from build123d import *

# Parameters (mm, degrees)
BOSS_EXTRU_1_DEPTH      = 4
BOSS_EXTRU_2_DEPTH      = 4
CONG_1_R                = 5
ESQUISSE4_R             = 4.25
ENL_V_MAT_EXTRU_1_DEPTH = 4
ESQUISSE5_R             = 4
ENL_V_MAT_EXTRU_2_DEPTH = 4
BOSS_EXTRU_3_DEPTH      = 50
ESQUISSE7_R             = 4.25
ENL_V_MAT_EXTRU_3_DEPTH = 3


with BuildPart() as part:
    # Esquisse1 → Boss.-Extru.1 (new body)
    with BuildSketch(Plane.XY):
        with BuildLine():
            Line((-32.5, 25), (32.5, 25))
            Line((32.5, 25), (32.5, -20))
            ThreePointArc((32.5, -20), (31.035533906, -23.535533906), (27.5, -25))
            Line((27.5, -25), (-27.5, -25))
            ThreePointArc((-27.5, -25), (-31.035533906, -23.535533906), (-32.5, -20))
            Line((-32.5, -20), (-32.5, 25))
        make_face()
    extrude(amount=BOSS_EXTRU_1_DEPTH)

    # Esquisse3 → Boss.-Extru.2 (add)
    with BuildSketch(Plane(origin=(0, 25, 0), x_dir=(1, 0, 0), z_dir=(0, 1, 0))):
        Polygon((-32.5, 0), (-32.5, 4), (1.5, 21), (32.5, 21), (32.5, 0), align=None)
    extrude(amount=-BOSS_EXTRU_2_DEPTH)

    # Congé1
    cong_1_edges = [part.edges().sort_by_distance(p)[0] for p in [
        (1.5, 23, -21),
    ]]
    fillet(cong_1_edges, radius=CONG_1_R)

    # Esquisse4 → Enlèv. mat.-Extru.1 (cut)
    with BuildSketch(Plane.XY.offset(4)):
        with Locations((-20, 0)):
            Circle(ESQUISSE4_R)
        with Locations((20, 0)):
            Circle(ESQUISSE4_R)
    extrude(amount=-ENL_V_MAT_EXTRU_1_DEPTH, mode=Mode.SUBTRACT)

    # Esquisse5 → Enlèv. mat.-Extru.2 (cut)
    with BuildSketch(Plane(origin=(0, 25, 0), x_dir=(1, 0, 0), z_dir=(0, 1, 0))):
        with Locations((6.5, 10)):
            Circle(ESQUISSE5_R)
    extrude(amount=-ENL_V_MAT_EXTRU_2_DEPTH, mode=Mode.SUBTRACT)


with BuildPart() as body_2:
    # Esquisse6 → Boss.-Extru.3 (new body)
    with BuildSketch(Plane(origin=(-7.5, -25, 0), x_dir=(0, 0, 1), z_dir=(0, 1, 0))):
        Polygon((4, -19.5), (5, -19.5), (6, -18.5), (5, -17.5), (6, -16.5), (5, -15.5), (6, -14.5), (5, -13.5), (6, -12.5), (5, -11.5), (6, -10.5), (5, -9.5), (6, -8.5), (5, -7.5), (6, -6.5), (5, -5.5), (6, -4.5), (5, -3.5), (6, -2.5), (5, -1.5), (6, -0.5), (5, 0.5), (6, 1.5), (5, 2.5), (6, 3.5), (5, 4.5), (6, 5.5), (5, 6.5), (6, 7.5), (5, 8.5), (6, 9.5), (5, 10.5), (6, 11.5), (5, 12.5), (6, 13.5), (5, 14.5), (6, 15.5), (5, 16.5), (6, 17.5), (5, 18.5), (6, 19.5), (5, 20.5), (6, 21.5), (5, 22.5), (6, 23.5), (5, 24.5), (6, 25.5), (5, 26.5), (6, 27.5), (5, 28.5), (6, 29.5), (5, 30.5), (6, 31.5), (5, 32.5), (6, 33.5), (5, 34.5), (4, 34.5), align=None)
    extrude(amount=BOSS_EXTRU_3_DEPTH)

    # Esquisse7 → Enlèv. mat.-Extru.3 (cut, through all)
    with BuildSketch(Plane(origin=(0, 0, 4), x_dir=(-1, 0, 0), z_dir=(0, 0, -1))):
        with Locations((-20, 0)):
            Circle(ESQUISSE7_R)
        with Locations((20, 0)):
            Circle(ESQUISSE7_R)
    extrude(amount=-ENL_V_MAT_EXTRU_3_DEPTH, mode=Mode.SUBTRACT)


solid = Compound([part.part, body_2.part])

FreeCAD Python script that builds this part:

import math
import FreeCAD as App
import Part
import Sketcher

V = App.Vector


def edges_at(feature, points):
    """Names of the edges that pass closest to the given points."""
    edges = feature.Shape.Edges
    near = lambda p: min(range(len(edges)), key=lambda i: edges[i].distToShape(Part.Vertex(*p))[0])
    return sorted({f"Edge{near(p) + 1}" for p in points})


def add_polygon(sketch, points):
    """Adds a closed chain of lines whose ends are joined by coincident constraints."""
    first, n = sketch.GeometryCount, len(points)
    for a, b in zip(points, points[1:] + points[:1]):
        sketch.addGeometry(Part.LineSegment(App.Vector(*a, 0), App.Vector(*b, 0)), False)
    for i in range(n):
        sketch.addConstraint(Sketcher.Constraint("Coincident", first + i, 2, first + (i + 1) % n, 1))

doc = App.newDocument("Part")
body = doc.addObject("PartDesign::Body", "Body")

sketch1 = body.newObject("Sketcher::SketchObject", "Sketch")
sketch1.AttachmentSupport = (doc.getObject("XY_Plane"), [""])
sketch1.MapMode = "FlatFace"
sketch1.addGeometry([
    Part.LineSegment(V(32.5, 25, 0), V(-32.5, 25, 0)),
    Part.LineSegment(V(-32.5, 25, 0), V(-32.5, -20, 0)),
    Part.ArcOfCircle(Part.Circle(V(-27.5, -20, 0), V(0, 0, 1), 5), math.radians(180), math.radians(270)),
    Part.LineSegment(V(-27.5, -25, 0), V(27.5, -25, 0)),
    Part.ArcOfCircle(Part.Circle(V(27.5, -20, 0), V(0, 0, 1), 5), math.radians(-90), math.radians(0)),
    Part.LineSegment(V(32.5, -20, 0), V(32.5, 25, 0)),
], False)
sketch1.addConstraint([
    Sketcher.Constraint("Coincident", 0, 2, 1, 1),
    Sketcher.Constraint("Tangent", 1, 2, 2, 1),
    Sketcher.Constraint("Tangent", 2, 2, 3, 1),
    Sketcher.Constraint("Tangent", 3, 2, 4, 1),
    Sketcher.Constraint("Tangent", 4, 2, 5, 1),
    Sketcher.Constraint("Coincident", 5, 2, 0, 1),
    Sketcher.Constraint("Horizontal", 0),
    Sketcher.Constraint("Vertical", 1),
    Sketcher.Constraint("Horizontal", 3),
    Sketcher.Constraint("Vertical", 5),
    Sketcher.Constraint("Equal", 2, 4),
    Sketcher.Constraint("Radius", 2, 5.0),
    Sketcher.Constraint("DistanceX", 0, 2, 0, 1, 65.0),
    Sketcher.Constraint("DistanceY", 1, 2, 1, 1, 45.0),
    Sketcher.Constraint("DistanceY", 2, 3, -1, 1, 20.0),
    Sketcher.Constraint("DistanceX", 2, 3, -1, 1, 27.5),
])
pad1 = body.newObject("PartDesign::Pad", "Pad")
pad1.Profile = sketch1
pad1.Length = 4

sketch2 = body.newObject("Sketcher::SketchObject", "Sketch001")
sketch2.AttachmentSupport = (doc.getObject("XZ_Plane"), [""])
sketch2.MapMode = "FlatFace"
sketch2.AttachmentOffset = App.Placement(V(0, 0, -25), App.Rotation())
add_polygon(sketch2, [(-32.5, -4), (-32.5, 0), (32.5, 0), (32.5, -21), (1.5, -21)])
sketch2.addConstraint([
    Sketcher.Constraint("Vertical", 0),
    Sketcher.Constraint("Horizontal", 1),
    Sketcher.Constraint("Vertical", 2),
    Sketcher.Constraint("Horizontal", 3),
    Sketcher.Constraint("Symmetric", 0, 2, 1, 2, -1, 1),
    Sketcher.Constraint("DistanceX", 1, 1, 1, 2, 65.0),
    Sketcher.Constraint("DistanceX", 3, 2, 3, 1, 31.0),
    Sketcher.Constraint("DistanceY", 0, 1, 0, 2, 4.0),
    Sketcher.Constraint("DistanceY", 2, 2, 2, 1, 21.0),
])
pad2 = body.newObject("PartDesign::Pad", "Pad001")
pad2.Profile = sketch2
pad2.Length = 4
doc.recompute()

fillet = body.newObject("PartDesign::Fillet", "Fillet")
fillet.Base = (pad2, edges_at(pad2, [(1.5, 23, -21)]))
fillet.Radius = 5

sketch3 = body.newObject("Sketcher::SketchObject", "Sketch002")
sketch3.AttachmentSupport = (doc.getObject("XY_Plane"), [""])
sketch3.MapMode = "FlatFace"
sketch3.AttachmentOffset = App.Placement(V(0, 0, 4), App.Rotation())
sketch3.addGeometry([
    Part.Circle(V(-20, 0, 0), V(0, 0, 1), 4.25),
    Part.Circle(V(20, 0, 0), V(0, 0, 1), 4.25),
], False)
sketch3.addConstraint([
    Sketcher.Constraint("Equal", 0, 1),
    Sketcher.Constraint("Symmetric", 0, 3, 1, 3, -1, 1),
    Sketcher.Constraint("PointOnObject", 0, 3, -1),
    Sketcher.Constraint("Diameter", 0, 8.5),
    Sketcher.Constraint("DistanceX", 0, 3, -1, 1, 20.0),
])
pocket1 = body.newObject("PartDesign::Pocket", "Pocket")
pocket1.Profile = sketch3
pocket1.Length = 4

sketch4 = body.newObject("Sketcher::SketchObject", "Sketch003")
sketch4.AttachmentSupport = (doc.getObject("XZ_Plane"), [""])
sketch4.MapMode = "FlatFace"
sketch4.AttachmentOffset = App.Placement(V(0, 0, -25), App.Rotation())
sketch4.addGeometry(Part.Circle(V(6.5, -10, 0), V(0, 0, 1), 4), False)
sketch4.addConstraint([
    Sketcher.Constraint("Diameter", 0, 8.0),
    Sketcher.Constraint("DistanceY", 0, 3, -1, 1, 10.0),
    Sketcher.Constraint("DistanceX", -1, 1, 0, 3, 6.5),
])
pocket2 = body.newObject("PartDesign::Pocket", "Pocket001")
pocket2.Profile = sketch4
pocket2.Length = 4
pocket2.Reversed = True
body2 = doc.addObject("PartDesign::Body", "Body001")

sketch5 = body2.newObject("Sketcher::SketchObject", "Sketch004")
sketch5.AttachmentSupport = (doc.getObject("XZ_Plane001"), [""])
sketch5.MapMode = "FlatFace"
sketch5.AttachmentOffset = App.Placement(V(0, 0, 25), App.Rotation())
add_polygon(sketch5, [(-27, 4), (-27, 5), (-26, 6), (-25, 5), (-24, 6), (-23, 5), (-22, 6), (-21, 5), (-20, 6), (-19, 5), (-18, 6), (-17, 5), (-16, 6), (-15, 5), (-14, 6), (-13, 5), (-12, 6), (-11, 5), (-10, 6), (-9, 5), (-8, 6), (-7, 5), (-6, 6), (-5, 5), (-4, 6), (-3, 5), (-2, 6), (-1, 5), (0, 6), (1, 5), (2, 6), (3, 5), (4, 6), (5, 5), (6, 6), (7, 5), (8, 6), (9, 5), (10, 6), (11, 5), (12, 6), (13, 5), (14, 6), (15, 5), (16, 6), (17, 5), (18, 6), (19, 5), (20, 6), (21, 5), (22, 6), (23, 5), (24, 6), (25, 5), (26, 6), (27, 5), (27, 4)])
sketch5.addConstraint([
    Sketcher.Constraint("Vertical", 0),
    Sketcher.Constraint("Vertical", 55),
    Sketcher.Constraint("Horizontal", 56),
    Sketcher.Constraint("Symmetric", 26, 2, 28, 2, -2),
    Sketcher.Constraint("Symmetric", 25, 2, 29, 2, -2),
    Sketcher.Constraint("Symmetric", 24, 2, 30, 2, -2),
    Sketcher.Constraint("Symmetric", 23, 2, 31, 2, -2),
    Sketcher.Constraint("Symmetric", 22, 2, 32, 2, -2),
    Sketcher.Constraint("Symmetric", 21, 2, 33, 2, -2),
    Sketcher.Constraint("Symmetric", 20, 2, 34, 2, -2),
    Sketcher.Constraint("Symmetric", 19, 2, 35, 2, -2),
    Sketcher.Constraint("Symmetric", 18, 2, 36, 2, -2),
    Sketcher.Constraint("Symmetric", 17, 2, 37, 2, -2),
    Sketcher.Constraint("Symmetric", 16, 2, 38, 2, -2),
    Sketcher.Constraint("Symmetric", 15, 2, 39, 2, -2),
    Sketcher.Constraint("Symmetric", 14, 2, 40, 2, -2),
    Sketcher.Constraint("Symmetric", 13, 2, 41, 2, -2),
    Sketcher.Constraint("Symmetric", 12, 2, 42, 2, -2),
    Sketcher.Constraint("Symmetric", 11, 2, 43, 2, -2),
    Sketcher.Constraint("Symmetric", 10, 2, 44, 2, -2),
    Sketcher.Constraint("Symmetric", 9, 2, 45, 2, -2),
    Sketcher.Constraint("Symmetric", 8, 2, 46, 2, -2),
    Sketcher.Constraint("Symmetric", 7, 2, 47, 2, -2),
    Sketcher.Constraint("Symmetric", 6, 2, 48, 2, -2),
    Sketcher.Constraint("Symmetric", 5, 2, 49, 2, -2),
    Sketcher.Constraint("Symmetric", 4, 2, 50, 2, -2),
    Sketcher.Constraint("Symmetric", 3, 2, 51, 2, -2),
    Sketcher.Constraint("Symmetric", 2, 2, 52, 2, -2),
    Sketcher.Constraint("Symmetric", 1, 2, 53, 2, -2),
    Sketcher.Constraint("Symmetric", 0, 2, 54, 2, -2),
    Sketcher.Constraint("PointOnObject", 27, 2, -2),
    Sketcher.Constraint("Perpendicular", 1, 2),
    Sketcher.Constraint("Perpendicular", 2, 3),
    Sketcher.Constraint("Perpendicular", 3, 4),
    Sketcher.Constraint("Perpendicular", 4, 5),
    Sketcher.Constraint("Perpendicular", 5, 6),
    Sketcher.Constraint("Perpendicular", 6, 7),
    Sketcher.Constraint("Perpendicular", 7, 8),
    Sketcher.Constraint("Perpendicular", 8, 9),
    Sketcher.Constraint("Perpendicular", 9, 10),
    Sketcher.Constraint("Perpendicular", 10, 11),
    Sketcher.Constraint("Perpendicular", 11, 12),
    Sketcher.Constraint("Perpendicular", 12, 13),
    Sketcher.Constraint("Perpendicular", 13, 14),
    Sketcher.Constraint("Perpendicular", 14, 15),
    Sketcher.Constraint("Perpendicular", 15, 16),
    Sketcher.Constraint("Perpendicular", 16, 17),
    Sketcher.Constraint("Perpendicular", 17, 18),
    Sketcher.Constraint("Perpendicular", 18, 19),
    Sketcher.Constraint("Perpendicular", 19, 20),
    Sketcher.Constraint("Perpendicular", 20, 21),
    Sketcher.Constraint("Perpendicular", 21, 22),
    Sketcher.Constraint("Perpendicular", 22, 23),
    Sketcher.Constraint("Perpendicular", 23, 24),
    Sketcher.Constraint("Perpendicular", 24, 25),
    Sketcher.Constraint("Perpendicular", 25, 26),
    Sketcher.Constraint("Perpendicular", 26, 27),
    Sketcher.Constraint("Perpendicular", 27, 28),
    Sketcher.Constraint("Horizontal", 0, 2, 2, 2),
    Sketcher.Constraint("Horizontal", 1, 2, 3, 2),
    Sketcher.Constraint("Horizontal", 2, 2, 4, 2),
    Sketcher.Constraint("Horizontal", 3, 2, 5, 2),
    Sketcher.Constraint("Horizontal", 4, 2, 6, 2),
    Sketcher.Constraint("Horizontal", 5, 2, 7, 2),
    Sketcher.Constraint("Horizontal", 6, 2, 8, 2),
    Sketcher.Constraint("Horizontal", 7, 2, 9, 2),
    Sketcher.Constraint("Horizontal", 8, 2, 10, 2),
    Sketcher.Constraint("Horizontal", 9, 2, 11, 2),
    Sketcher.Constraint("Horizontal", 10, 2, 12, 2),
    Sketcher.Constraint("Horizontal", 11, 2, 13, 2),
    Sketcher.Constraint("Horizontal", 12, 2, 14, 2),
    Sketcher.Constraint("Horizontal", 13, 2, 15, 2),
    Sketcher.Constraint("Horizontal", 14, 2, 16, 2),
    Sketcher.Constraint("Horizontal", 15, 2, 17, 2),
    Sketcher.Constraint("Horizontal", 16, 2, 18, 2),
    Sketcher.Constraint("Horizontal", 17, 2, 19, 2),
    Sketcher.Constraint("Horizontal", 18, 2, 20, 2),
    Sketcher.Constraint("Horizontal", 19, 2, 21, 2),
    Sketcher.Constraint("Horizontal", 20, 2, 22, 2),
    Sketcher.Constraint("Horizontal", 21, 2, 23, 2),
    Sketcher.Constraint("Horizontal", 22, 2, 24, 2),
    Sketcher.Constraint("Horizontal", 23, 2, 25, 2),
    Sketcher.Constraint("Horizontal", 24, 2, 26, 2),
    Sketcher.Constraint("Horizontal", 25, 2, 27, 2),
    Sketcher.Constraint("DistanceX", 56, 2, 56, 1, 54.0),
    Sketcher.Constraint("DistanceY", 0, 1, 0, 2, 1.0),
    Sketcher.Constraint("DistanceY", -1, 1, 0, 2, 5.0),
])
pad3 = body2.newObject("PartDesign::Pad", "Pad002")
pad3.Profile = sketch5
pad3.Length = 50
pad3.Reversed = True

sketch6 = body2.newObject("Sketcher::SketchObject", "Sketch005")
sketch6.AttachmentSupport = (doc.getObject("XY_Plane001"), [""])
sketch6.MapMode = "FlatFace"
sketch6.AttachmentOffset = App.Placement(V(0, 0, 4), App.Rotation())
sketch6.addGeometry([
    Part.Circle(V(20, 0, 0), V(0, 0, 1), 4.25),
    Part.Circle(V(-20, 0, 0), V(0, 0, 1), 4.25),
], False)
sketch6.addConstraint([
    Sketcher.Constraint("Equal", 0, 1),
    Sketcher.Constraint("Symmetric", 0, 3, 1, 3, -1, 1),
    Sketcher.Constraint("PointOnObject", 0, 3, -1),
    Sketcher.Constraint("Diameter", 0, 8.5),
    Sketcher.Constraint("DistanceX", -1, 1, 0, 3, 20.0),
])
pocket3 = body2.newObject("PartDesign::Pocket", "Pocket002")
pocket3.Profile = sketch6
pocket3.Type = "ThroughAll"
pocket3.Reversed = True

doc.recompute()
